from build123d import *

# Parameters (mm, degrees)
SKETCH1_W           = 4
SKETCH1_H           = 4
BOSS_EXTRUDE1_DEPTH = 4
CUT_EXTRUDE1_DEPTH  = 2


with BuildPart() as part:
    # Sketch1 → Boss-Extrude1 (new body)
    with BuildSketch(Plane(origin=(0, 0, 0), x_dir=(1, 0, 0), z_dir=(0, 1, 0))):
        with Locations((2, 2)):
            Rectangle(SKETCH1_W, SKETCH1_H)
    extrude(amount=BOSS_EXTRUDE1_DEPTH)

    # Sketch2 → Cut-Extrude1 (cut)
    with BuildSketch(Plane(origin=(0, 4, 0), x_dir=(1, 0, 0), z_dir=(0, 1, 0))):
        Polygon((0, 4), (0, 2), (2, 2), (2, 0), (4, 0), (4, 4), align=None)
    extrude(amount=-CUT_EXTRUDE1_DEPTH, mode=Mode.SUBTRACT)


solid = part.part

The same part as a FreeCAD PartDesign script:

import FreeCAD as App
import Part
import Sketcher

V = App.Vector


def add_polygon(sketch, points):
    """Adds a closed chain of lines whose ends are joined by coincident constraints."""
    first, n = sketch.GeometryCount, len(points)
    for a, b in zip(points, points[1:] + points[:1]):
        sketch.addGeometry(Part.LineSegment(App.Vector(*a, 0), App.Vector(*b, 0)), False)
    for i in range(n):
        sketch.addConstraint(Sketcher.Constraint("Coincident", first + i, 2, first + (i + 1) % n, 1))

doc = App.newDocument("Part")
body = doc.addObject("PartDesign::Body", "Body")

# Sketch on XZ plane
sketch1 = body.newObject("Sketcher::SketchObject", "Sketch")
sketch1.AttachmentSupport = (doc.getObject("XZ_Plane"), [""])
sketch1.MapMode = "FlatFace"
add_polygon(sketch1, [(0, -4), (0, 0), (4, 0), (4, -4)])  # lines 0-3
sketch1.addConstraint(Sketcher.Constraint("Vertical", 0))
sketch1.addConstraint(Sketcher.Constraint("Horizontal", 1))
sketch1.addConstraint(Sketcher.Constraint("Vertical", 2))
sketch1.addConstraint(Sketcher.Constraint("Horizontal", 3))
sketch1.addConstraint(Sketcher.Constraint("Coincident", 0, 2, -1, 1))
sketch1.addConstraint(Sketcher.Constraint("Equal", 3, 0))
sketch1.addConstraint(Sketcher.Constraint("DistanceX", 1, 1, 1, 2, 4.0))
pad1 = body.newObject("PartDesign::Pad", "Pad")
pad1.Profile = sketch1
pad1.Length = 4
pad1.Reversed = True

# Sketch on XZ plane
sketch2 = body.newObject("Sketcher::SketchObject", "Sketch001")
sketch2.AttachmentSupport = (doc.getObject("XZ_Plane"), [""])
sketch2.MapMode = "FlatFace"
sketch2.AttachmentOffset = App.Placement(V(0, 0, -4), App.Rotation())
add_polygon(sketch2, [(0, -4), (0, -2), (2, -2), (2, 0), (4, 0), (4, -4)])  # lines 0-5
sketch2.addConstraint(Sketcher.Constraint("Vertical", 0))
sketch2.addConstraint(Sketcher.Constraint("Horizontal", 1))
sketch2.addConstraint(Sketcher.Constraint("Vertical", 2))
sketch2.addConstraint(Sketcher.Constraint("Horizontal", 3))
sketch2.addConstraint(Sketcher.Constraint("Vertical", 4))
sketch2.addConstraint(Sketcher.Constraint("Horizontal", 5))
sketch2.addConstraint(Sketcher.Constraint("PointOnObject", 0, 2, -2))
sketch2.addConstraint(Sketcher.Constraint("PointOnObject", 2, 2, -1))
sketch2.addConstraint(Sketcher.Constraint("Equal", 1, 3))
sketch2.addConstraint(Sketcher.Constraint("Equal", 3, 0))
sketch2.addConstraint(Sketcher.Constraint("Equal", 0, 2))
sketch2.addConstraint(Sketcher.Constraint("DistanceX", 1, 1, 1, 2, 2.0))
pocket1 = body.newObject("PartDesign::Pocket", "Pocket")
pocket1.Profile = sketch2
pocket1.Length = 2
pocket1.Reversed = True

doc.recompute()
